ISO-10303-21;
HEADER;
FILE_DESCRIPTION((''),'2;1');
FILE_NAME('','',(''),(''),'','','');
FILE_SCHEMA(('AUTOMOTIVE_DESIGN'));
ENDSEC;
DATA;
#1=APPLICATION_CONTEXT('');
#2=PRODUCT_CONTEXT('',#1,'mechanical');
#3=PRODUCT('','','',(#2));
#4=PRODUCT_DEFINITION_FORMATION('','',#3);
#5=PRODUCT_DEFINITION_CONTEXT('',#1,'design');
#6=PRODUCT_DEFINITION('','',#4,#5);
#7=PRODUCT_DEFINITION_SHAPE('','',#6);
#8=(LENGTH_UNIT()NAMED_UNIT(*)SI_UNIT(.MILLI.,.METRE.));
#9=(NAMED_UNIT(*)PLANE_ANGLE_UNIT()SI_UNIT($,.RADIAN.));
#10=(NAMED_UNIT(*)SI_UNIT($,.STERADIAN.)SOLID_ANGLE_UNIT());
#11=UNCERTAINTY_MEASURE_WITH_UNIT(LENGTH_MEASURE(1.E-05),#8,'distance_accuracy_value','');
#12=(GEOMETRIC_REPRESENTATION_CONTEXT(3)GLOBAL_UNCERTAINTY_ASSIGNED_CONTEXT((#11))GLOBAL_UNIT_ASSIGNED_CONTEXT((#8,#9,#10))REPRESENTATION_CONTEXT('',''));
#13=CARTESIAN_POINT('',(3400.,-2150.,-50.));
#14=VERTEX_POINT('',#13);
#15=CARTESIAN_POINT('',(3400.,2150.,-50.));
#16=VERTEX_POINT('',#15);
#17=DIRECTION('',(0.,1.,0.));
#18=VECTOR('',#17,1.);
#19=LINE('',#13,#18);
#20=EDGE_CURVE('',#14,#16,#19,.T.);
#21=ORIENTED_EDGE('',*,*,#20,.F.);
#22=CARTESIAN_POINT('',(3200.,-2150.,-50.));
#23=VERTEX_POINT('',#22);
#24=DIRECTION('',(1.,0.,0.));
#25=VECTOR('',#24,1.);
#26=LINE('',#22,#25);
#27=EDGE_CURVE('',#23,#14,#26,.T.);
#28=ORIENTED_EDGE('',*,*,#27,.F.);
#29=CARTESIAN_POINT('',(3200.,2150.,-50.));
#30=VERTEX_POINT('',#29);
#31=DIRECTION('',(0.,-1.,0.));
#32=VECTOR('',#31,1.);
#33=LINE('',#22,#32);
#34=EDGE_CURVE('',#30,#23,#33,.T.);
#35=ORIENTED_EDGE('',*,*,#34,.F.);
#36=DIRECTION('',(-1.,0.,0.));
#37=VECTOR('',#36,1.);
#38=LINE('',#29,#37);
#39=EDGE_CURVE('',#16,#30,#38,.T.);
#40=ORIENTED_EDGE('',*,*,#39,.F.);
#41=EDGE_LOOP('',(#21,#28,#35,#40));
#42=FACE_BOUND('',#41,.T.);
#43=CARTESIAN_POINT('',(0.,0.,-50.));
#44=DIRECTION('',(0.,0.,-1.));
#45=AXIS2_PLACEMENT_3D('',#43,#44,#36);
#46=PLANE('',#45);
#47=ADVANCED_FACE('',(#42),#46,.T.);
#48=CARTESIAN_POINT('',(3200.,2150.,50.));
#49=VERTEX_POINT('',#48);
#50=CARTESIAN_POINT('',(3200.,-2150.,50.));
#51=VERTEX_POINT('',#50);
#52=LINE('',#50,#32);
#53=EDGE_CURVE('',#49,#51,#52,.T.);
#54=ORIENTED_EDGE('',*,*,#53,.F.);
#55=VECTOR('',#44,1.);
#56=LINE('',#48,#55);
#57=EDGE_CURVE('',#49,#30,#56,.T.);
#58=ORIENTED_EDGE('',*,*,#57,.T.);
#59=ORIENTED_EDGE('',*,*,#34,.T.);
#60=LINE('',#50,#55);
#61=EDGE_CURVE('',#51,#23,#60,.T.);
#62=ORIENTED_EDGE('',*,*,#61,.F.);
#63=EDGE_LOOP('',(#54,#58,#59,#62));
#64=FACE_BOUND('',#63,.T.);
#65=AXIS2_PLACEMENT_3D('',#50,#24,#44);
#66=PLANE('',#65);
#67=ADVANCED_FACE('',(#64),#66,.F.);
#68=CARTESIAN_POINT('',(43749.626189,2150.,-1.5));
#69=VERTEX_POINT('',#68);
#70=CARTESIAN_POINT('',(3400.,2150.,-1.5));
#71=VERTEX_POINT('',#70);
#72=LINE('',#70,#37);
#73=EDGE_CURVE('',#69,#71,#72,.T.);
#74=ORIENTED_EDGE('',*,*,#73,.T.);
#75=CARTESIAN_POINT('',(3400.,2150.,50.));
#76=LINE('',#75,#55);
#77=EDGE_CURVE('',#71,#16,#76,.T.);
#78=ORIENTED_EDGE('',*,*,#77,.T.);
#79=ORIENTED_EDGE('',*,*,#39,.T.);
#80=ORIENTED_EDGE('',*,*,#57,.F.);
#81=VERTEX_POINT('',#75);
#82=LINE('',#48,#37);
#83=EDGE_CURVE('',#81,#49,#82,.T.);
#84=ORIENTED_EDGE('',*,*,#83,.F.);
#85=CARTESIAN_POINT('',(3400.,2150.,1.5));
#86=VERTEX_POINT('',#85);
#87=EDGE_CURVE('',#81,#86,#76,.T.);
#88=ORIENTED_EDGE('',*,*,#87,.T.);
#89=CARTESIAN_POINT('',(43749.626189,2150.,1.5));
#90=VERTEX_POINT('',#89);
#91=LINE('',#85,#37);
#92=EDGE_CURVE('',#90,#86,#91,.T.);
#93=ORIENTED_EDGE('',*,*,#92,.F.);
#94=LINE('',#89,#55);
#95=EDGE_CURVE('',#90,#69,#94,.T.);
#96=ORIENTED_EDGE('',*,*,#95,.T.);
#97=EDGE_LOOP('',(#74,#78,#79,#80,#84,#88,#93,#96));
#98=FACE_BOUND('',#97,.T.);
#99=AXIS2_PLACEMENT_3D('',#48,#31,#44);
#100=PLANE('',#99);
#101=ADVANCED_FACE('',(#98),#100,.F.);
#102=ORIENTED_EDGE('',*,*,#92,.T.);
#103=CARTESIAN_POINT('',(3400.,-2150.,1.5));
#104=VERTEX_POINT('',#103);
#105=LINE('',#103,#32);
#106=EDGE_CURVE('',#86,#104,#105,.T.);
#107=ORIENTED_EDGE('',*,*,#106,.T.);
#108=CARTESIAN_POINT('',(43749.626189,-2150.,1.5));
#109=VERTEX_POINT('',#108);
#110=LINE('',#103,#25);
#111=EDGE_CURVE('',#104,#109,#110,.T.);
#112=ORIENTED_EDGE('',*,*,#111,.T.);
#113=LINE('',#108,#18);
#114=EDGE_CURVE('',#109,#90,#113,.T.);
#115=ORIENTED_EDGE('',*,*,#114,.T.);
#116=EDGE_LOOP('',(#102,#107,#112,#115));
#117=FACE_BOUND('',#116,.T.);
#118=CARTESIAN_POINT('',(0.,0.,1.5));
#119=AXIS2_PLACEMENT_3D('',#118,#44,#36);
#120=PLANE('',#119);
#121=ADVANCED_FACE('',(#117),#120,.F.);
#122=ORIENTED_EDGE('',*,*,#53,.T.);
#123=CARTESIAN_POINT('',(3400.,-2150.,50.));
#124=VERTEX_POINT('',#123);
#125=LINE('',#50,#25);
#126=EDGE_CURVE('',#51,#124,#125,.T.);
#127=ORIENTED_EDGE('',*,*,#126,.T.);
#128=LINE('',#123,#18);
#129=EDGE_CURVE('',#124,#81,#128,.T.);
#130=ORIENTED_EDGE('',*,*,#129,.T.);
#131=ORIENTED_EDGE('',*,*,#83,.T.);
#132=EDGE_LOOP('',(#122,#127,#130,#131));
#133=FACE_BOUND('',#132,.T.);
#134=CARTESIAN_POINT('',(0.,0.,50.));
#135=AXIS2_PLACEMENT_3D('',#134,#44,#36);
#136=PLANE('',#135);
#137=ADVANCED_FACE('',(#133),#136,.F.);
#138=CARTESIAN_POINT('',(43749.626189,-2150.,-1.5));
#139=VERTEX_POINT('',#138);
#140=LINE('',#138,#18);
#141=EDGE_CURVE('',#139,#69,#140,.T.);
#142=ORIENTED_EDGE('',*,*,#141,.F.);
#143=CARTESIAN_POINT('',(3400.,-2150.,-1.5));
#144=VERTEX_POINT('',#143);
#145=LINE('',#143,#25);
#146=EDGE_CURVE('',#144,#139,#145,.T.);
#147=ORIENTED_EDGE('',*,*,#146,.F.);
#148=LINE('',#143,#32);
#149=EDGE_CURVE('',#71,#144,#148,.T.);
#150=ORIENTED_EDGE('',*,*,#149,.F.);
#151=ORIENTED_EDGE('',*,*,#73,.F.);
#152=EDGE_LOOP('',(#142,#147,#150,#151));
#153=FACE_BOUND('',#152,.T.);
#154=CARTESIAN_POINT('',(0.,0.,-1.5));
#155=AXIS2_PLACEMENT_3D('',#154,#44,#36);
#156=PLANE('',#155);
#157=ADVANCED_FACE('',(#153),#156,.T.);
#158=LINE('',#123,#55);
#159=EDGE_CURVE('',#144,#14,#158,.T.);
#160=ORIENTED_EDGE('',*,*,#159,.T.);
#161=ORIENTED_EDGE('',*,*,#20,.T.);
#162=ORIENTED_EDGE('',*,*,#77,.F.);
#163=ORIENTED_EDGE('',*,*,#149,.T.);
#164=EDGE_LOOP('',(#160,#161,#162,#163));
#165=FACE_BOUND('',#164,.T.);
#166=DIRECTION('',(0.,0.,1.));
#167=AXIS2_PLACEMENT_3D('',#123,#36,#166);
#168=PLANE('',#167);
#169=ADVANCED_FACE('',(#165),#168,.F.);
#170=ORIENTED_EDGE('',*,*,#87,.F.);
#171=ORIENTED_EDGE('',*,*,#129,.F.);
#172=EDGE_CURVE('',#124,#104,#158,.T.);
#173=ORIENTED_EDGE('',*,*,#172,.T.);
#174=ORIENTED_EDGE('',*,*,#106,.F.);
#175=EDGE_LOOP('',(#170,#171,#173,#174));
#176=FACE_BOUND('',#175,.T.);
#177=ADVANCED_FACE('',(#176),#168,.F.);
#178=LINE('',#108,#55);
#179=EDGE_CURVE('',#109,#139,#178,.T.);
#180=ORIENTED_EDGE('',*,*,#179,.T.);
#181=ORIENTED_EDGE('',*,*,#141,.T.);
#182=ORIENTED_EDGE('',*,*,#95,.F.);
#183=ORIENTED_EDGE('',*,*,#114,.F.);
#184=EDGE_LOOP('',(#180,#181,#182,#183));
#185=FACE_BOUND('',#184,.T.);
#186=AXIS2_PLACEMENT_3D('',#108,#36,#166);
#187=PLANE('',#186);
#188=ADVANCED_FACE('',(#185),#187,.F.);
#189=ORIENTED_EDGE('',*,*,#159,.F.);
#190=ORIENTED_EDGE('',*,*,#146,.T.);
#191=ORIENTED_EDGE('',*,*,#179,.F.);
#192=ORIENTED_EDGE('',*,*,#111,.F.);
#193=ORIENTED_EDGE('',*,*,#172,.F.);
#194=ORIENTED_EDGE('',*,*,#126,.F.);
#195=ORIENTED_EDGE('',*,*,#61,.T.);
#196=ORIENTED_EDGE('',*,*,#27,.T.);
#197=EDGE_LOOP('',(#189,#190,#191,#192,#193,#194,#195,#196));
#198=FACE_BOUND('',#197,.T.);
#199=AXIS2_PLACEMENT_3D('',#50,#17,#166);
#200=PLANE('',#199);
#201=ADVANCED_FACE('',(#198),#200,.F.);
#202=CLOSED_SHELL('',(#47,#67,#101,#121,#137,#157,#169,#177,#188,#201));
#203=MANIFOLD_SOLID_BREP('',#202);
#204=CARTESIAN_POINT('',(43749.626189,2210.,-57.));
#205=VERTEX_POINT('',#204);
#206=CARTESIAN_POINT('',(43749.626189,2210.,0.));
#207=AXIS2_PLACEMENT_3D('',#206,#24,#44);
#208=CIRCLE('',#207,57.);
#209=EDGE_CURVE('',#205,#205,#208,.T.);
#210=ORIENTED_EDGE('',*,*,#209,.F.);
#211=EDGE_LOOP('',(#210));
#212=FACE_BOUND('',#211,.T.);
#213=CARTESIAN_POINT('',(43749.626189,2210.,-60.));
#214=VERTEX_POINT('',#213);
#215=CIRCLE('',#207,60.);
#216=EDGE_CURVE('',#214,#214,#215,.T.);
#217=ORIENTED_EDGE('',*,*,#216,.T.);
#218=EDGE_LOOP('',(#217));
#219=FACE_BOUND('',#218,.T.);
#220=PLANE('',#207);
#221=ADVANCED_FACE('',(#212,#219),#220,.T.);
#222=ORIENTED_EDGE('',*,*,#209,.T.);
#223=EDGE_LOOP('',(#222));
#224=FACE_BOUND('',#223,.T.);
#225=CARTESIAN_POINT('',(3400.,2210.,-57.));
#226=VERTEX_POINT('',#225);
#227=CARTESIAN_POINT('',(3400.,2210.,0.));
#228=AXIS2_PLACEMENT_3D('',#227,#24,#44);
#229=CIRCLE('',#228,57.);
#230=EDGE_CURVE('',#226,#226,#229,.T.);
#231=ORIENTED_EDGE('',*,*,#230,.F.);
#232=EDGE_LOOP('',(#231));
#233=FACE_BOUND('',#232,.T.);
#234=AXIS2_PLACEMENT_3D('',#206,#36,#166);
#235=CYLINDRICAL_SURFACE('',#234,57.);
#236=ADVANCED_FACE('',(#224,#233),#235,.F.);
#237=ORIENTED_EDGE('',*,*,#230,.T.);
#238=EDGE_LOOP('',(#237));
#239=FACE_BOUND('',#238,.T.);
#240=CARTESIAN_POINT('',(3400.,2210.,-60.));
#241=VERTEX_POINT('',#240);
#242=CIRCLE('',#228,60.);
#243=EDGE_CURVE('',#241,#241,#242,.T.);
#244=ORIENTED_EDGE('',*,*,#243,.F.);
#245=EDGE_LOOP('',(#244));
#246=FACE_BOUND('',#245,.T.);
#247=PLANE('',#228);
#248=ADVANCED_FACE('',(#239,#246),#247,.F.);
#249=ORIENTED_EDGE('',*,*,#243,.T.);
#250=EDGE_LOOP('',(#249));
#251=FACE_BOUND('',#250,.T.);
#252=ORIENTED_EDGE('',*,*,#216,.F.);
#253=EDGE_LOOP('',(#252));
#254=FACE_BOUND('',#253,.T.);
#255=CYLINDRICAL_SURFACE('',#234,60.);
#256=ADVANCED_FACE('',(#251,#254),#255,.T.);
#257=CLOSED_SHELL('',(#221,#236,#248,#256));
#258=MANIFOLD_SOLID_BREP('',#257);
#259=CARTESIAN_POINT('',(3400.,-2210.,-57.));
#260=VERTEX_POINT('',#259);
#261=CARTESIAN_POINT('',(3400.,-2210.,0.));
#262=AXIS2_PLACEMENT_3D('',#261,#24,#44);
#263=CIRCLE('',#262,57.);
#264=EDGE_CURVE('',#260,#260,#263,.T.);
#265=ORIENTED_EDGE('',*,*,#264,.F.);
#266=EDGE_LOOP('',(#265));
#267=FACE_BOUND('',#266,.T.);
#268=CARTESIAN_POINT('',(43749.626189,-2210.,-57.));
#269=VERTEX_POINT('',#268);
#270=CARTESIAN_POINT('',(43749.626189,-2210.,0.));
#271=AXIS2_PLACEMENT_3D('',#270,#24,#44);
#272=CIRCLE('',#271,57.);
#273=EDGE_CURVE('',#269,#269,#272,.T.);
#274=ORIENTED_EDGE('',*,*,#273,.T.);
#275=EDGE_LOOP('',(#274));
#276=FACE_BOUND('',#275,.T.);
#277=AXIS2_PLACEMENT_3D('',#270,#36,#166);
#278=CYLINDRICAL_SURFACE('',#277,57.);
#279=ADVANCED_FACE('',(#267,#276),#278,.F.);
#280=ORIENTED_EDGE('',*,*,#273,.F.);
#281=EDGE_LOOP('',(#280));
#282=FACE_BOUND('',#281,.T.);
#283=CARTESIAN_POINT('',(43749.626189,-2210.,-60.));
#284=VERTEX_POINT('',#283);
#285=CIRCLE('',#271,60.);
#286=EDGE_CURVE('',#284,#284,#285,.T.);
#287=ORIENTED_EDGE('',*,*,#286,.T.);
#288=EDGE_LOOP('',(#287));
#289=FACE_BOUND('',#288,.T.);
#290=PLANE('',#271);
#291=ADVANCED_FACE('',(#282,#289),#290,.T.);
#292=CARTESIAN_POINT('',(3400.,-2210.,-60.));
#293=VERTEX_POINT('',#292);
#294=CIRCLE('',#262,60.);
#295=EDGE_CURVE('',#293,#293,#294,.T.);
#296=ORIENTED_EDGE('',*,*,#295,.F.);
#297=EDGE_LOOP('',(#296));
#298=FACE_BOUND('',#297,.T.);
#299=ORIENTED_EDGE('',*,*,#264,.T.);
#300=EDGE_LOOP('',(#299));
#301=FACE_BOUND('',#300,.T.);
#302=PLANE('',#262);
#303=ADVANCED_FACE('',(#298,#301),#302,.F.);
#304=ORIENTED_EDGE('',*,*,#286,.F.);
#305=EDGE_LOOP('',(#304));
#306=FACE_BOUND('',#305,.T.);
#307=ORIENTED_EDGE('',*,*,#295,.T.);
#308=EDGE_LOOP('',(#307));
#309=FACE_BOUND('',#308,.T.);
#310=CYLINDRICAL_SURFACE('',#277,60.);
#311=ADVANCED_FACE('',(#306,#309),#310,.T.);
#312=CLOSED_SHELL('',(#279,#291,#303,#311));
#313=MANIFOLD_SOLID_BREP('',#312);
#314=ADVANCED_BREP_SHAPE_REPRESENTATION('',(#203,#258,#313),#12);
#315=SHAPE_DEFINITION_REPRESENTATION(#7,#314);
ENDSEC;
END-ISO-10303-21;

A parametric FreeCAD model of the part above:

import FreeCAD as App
import Part
import Sketcher

V = App.Vector
Q = App.Units.Quantity


def add_polygon(sketch, points):
    """Adds a closed chain of lines whose ends are joined by coincident constraints."""
    first, n = sketch.GeometryCount, len(points)
    for a, b in zip(points, points[1:] + points[:1]):
        sketch.addGeometry(Part.LineSegment(App.Vector(*a, 0), App.Vector(*b, 0)), False)
    for i in range(n):
        sketch.addConstraint(Sketcher.Constraint("Coincident", first + i, 2, first + (i + 1) % n, 1))

doc = App.newDocument("Part")
body = doc.addObject("PartDesign::Body", "Body")

sketch1 = body.newObject("Sketcher::SketchObject", "Sketch")
sketch1.AttachmentSupport = (doc.getObject("XY_Plane"), [""])
sketch1.MapMode = "FlatFace"
sketch1.AttachmentOffset = App.Placement(V(0, 0, -50), App.Rotation())
add_polygon(sketch1, [(3200, 2150), (3200, -2150), (3400, -2150), (3400, 2150)])
sketch1.addConstraint([
    Sketcher.Constraint("Vertical", 0),
    Sketcher.Constraint("Horizontal", 1),
    Sketcher.Constraint("Vertical", 2),
    Sketcher.Constraint("Horizontal", 3),
    Sketcher.Constraint("DistanceX", 1, 1, 1, 2, Q("200 mm")),
    Sketcher.Constraint("DistanceY", 0, 2, 0, 1, Q("4300 mm")),
    Sketcher.Constraint("DistanceX", -1, 1, 0, 2, Q("3200 mm")),
    Sketcher.Constraint("DistanceY", 0, 2, -1, 1, Q("2150 mm")),
])
pad1 = body.newObject("PartDesign::Pad", "Pad")
pad1.Profile = sketch1
pad1.Length = 100

sketch2 = body.newObject("Sketcher::SketchObject", "Sketch001")
sketch2.AttachmentSupport = (doc.getObject("XY_Plane"), [""])
sketch2.MapMode = "FlatFace"
sketch2.AttachmentOffset = App.Placement(V(0, 0, -1.5), App.Rotation())
add_polygon(sketch2, [(3400, 2150), (3400, -2150), (43750, -2150), (43750, 2150)])
sketch2.addConstraint([
    Sketcher.Constraint("Vertical", 0),
    Sketcher.Constraint("Horizontal", 1),
    Sketcher.Constraint("Vertical", 2),
    Sketcher.Constraint("Horizontal", 3),
    Sketcher.Constraint("DistanceY", 0, 2, 0, 1, Q("4300 mm")),
    Sketcher.Constraint("DistanceX", -1, 1, 0, 2, Q("3400 mm")),
    Sketcher.Constraint("DistanceY", 0, 2, -1, 1, Q("2150 mm")),
    Sketcher.Constraint("DistanceX", 1, 1, 1, 2, Q("40349.626189 mm")),
])
pad2 = body.newObject("PartDesign::Pad", "Pad001")
pad2.Profile = sketch2
pad2.Length = 3
body2 = doc.addObject("PartDesign::Body", "Body001")

sketch3 = body2.newObject("Sketcher::SketchObject", "Sketch002")
sketch3.AttachmentSupport = (doc.getObject("YZ_Plane001"), [""])
sketch3.MapMode = "FlatFace"
sketch3.AttachmentOffset = App.Placement(V(0, 0, 3400), App.Rotation())
sketch3.addGeometry([
    Part.Circle(V(-2210, 0, 0), V(0, 0, 1), 60),
    Part.Circle(V(-2210, 0, 0), V(0, 0, 1), 57),
], False)
sketch3.addConstraint([
    Sketcher.Constraint("Coincident", 1, 3, 0, 3),
    Sketcher.Constraint("PointOnObject", 0, 3, -1),
    Sketcher.Constraint("Diameter", 0, Q("120 mm")),
    Sketcher.Constraint("Diameter", 1, Q("114 mm")),
    Sketcher.Constraint("DistanceX", 0, 3, -1, 1, Q("2210 mm")),
])
pad3 = body2.newObject("PartDesign::Pad", "Pad002")
pad3.Profile = sketch3
pad3.Length = 40349.626189
body3 = doc.addObject("PartDesign::Body", "Body002")

sketch4 = body3.newObject("Sketcher::SketchObject", "Sketch003")
sketch4.AttachmentSupport = (doc.getObject("YZ_Plane002"), [""])
sketch4.MapMode = "FlatFace"
sketch4.AttachmentOffset = App.Placement(V(0, 0, 3400), App.Rotation())
sketch4.addGeometry([
    Part.Circle(V(2210, 0, 0), V(0, 0, 1), 60),
    Part.Circle(V(2210, 0, 0), V(0, 0, 1), 57),
], False)
sketch4.addConstraint([
    Sketcher.Constraint("Coincident", 1, 3, 0, 3),
    Sketcher.Constraint("PointOnObject", 0, 3, -1),
    Sketcher.Constraint("Diameter", 0, Q("120 mm")),
    Sketcher.Constraint("Diameter", 1, Q("114 mm")),
    Sketcher.Constraint("DistanceX", -1, 1, 0, 3, Q("2210 mm")),
])
pad4 = body3.newObject("PartDesign::Pad", "Pad003")
pad4.Profile = sketch4
pad4.Length = 40349.626189

doc.recompute()
